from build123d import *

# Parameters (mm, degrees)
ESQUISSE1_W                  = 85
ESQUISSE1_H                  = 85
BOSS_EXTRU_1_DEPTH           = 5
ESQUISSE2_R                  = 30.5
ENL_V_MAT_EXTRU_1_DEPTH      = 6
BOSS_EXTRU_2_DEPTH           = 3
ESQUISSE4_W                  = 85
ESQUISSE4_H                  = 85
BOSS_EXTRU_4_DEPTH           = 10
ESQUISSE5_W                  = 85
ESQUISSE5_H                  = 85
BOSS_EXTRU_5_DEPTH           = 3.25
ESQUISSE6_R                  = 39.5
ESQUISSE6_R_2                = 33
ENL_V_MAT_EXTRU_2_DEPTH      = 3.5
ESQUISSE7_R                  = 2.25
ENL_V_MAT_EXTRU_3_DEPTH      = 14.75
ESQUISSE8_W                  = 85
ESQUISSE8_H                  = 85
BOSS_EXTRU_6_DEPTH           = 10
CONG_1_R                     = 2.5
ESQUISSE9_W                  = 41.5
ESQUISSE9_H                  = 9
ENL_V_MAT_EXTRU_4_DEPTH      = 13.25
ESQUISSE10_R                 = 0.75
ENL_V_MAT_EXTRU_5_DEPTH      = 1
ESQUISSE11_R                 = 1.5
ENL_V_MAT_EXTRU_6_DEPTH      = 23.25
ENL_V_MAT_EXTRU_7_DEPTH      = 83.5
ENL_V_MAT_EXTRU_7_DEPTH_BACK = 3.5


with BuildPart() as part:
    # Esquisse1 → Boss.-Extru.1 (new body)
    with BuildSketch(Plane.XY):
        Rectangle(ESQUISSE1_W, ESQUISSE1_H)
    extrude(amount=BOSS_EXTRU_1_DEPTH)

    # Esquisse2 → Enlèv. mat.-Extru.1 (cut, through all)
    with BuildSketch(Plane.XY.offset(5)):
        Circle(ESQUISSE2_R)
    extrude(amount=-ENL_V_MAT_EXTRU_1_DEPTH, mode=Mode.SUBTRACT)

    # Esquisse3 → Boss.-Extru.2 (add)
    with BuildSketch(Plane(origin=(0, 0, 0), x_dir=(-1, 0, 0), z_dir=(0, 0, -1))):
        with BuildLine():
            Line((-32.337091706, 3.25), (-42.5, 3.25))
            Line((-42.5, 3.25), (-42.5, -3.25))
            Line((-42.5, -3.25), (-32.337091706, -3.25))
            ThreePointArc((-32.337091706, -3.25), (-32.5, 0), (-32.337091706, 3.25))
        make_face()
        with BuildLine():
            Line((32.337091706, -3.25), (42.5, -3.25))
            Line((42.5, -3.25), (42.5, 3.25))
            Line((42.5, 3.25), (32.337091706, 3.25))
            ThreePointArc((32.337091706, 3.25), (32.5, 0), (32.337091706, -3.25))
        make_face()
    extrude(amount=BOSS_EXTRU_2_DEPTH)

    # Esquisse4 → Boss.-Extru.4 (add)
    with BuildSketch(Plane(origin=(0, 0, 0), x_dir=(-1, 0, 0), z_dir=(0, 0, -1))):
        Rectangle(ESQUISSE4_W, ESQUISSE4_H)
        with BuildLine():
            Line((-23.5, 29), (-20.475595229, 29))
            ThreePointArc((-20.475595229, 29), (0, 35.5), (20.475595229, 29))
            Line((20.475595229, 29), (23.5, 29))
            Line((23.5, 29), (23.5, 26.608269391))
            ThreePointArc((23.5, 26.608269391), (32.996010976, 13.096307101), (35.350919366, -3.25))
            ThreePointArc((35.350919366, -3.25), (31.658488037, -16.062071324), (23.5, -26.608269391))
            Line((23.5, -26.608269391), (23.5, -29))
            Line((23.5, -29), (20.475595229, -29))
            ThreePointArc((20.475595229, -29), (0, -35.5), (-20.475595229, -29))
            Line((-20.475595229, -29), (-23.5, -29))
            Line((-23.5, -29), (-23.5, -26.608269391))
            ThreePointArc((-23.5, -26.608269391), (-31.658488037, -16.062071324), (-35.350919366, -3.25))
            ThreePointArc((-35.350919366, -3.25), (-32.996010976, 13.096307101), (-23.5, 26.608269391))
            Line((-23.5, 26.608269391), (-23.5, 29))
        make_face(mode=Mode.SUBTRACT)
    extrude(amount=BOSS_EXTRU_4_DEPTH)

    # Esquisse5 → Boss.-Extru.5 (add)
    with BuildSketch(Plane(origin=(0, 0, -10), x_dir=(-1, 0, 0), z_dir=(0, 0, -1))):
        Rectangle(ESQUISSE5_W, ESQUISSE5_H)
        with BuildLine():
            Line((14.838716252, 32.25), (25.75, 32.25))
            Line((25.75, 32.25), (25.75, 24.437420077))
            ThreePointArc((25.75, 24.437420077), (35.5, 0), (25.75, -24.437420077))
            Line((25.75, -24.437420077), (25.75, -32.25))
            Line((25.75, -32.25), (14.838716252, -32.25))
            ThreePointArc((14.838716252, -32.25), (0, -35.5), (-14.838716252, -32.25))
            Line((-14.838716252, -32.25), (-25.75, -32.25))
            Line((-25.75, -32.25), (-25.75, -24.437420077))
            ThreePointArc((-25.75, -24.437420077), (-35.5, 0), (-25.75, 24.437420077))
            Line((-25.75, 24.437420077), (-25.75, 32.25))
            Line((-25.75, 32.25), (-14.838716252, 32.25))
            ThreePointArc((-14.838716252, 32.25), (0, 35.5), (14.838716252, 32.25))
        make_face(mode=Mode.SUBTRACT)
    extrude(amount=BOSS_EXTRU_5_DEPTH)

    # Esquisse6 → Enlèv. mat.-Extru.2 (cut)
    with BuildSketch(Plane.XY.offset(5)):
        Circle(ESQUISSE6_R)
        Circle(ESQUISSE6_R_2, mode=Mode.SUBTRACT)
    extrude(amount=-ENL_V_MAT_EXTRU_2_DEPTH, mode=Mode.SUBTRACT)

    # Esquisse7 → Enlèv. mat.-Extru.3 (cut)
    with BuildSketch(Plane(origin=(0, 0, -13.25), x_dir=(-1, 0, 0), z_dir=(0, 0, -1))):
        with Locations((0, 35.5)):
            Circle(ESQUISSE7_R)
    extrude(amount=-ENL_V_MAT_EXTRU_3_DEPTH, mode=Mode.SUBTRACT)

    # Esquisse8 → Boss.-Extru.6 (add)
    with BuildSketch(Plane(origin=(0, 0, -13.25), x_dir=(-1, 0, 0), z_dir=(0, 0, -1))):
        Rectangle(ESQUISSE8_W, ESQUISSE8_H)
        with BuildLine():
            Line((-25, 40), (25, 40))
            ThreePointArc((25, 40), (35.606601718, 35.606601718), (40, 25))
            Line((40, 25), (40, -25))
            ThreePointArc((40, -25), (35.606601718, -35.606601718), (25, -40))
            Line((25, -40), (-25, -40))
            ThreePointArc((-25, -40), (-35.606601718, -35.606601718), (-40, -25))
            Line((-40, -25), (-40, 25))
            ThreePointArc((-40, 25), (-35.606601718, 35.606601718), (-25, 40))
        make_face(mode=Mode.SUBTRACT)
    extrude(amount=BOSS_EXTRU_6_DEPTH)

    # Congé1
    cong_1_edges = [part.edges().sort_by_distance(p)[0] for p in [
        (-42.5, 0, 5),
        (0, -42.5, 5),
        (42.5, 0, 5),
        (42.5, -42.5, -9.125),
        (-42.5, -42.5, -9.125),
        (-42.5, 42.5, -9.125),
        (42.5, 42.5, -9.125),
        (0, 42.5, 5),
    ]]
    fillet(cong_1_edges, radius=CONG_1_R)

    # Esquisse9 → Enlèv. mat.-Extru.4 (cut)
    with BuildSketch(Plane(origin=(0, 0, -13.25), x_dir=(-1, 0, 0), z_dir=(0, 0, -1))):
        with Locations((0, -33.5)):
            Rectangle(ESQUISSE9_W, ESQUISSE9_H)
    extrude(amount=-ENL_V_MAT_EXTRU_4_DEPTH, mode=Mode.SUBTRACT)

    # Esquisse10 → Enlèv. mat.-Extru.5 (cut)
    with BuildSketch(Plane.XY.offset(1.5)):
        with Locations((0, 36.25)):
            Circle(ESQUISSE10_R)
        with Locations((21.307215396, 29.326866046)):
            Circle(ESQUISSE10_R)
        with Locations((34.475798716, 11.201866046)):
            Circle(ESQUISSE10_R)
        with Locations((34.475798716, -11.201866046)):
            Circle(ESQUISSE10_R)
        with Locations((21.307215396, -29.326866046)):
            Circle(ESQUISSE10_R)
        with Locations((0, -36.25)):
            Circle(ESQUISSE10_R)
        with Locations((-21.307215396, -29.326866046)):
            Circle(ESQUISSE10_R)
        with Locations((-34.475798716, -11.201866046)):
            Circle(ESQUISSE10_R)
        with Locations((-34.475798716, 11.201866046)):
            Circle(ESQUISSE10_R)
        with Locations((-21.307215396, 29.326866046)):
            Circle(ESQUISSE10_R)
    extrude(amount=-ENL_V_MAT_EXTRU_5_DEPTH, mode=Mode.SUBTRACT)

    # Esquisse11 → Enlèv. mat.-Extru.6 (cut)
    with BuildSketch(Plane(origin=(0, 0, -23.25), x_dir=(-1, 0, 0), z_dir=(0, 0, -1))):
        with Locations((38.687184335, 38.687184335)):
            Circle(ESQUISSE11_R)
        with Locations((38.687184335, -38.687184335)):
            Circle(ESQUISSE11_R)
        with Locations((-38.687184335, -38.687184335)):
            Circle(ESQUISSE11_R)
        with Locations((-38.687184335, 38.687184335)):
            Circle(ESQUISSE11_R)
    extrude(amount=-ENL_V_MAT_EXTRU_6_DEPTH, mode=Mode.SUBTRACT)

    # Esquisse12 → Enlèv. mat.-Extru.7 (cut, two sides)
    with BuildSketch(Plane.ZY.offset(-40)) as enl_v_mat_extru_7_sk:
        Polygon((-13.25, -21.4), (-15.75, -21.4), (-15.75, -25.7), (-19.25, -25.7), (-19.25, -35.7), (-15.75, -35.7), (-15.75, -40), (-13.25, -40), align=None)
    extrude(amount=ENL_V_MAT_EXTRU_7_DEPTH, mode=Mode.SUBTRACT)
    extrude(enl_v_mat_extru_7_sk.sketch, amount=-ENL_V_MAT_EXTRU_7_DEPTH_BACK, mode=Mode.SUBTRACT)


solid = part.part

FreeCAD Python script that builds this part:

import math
import FreeCAD as App
import Part
import Sketcher

V = App.Vector


def edges_at(feature, points):
    """Names of the edges that pass closest to the given points."""
    edges = feature.Shape.Edges
    near = lambda p: min(range(len(edges)), key=lambda i: edges[i].distToShape(Part.Vertex(*p))[0])
    return sorted({f"Edge{near(p) + 1}" for p in points})

doc = App.newDocument("Part")
body = doc.addObject("PartDesign::Body", "Body")

sketch1 = body.newObject("Sketcher::SketchObject", "Sketch")
sketch1.AttachmentSupport = (doc.getObject("XY_Plane"), [""])
sketch1.MapMode = "FlatFace"
sketch1.addGeometry(Part.LineSegment(V(-42, 42, 0), V(-42, -42, 0)), False)
sketch1.addGeometry(Part.LineSegment(V(-42, -42, 0), V(42, -42, 0)), False)
sketch1.addGeometry(Part.LineSegment(V(42, -42, 0), V(42, 42, 0)), False)
sketch1.addGeometry(Part.LineSegment(V(42, 42, 0), V(-42, 42, 0)), False)
sketch1.addConstraint(Sketcher.Constraint("Coincident", 0, 2, 1, 1))
sketch1.addConstraint(Sketcher.Constraint("Coincident", 1, 2, 2, 1))
sketch1.addConstraint(Sketcher.Constraint("Coincident", 2, 2, 3, 1))
sketch1.addConstraint(Sketcher.Constraint("Coincident", 3, 2, 0, 1))
sketch1.addConstraint(Sketcher.Constraint("Vertical", 0))
sketch1.addConstraint(Sketcher.Constraint("Horizontal", 1))
sketch1.addConstraint(Sketcher.Constraint("Vertical", 2))
sketch1.addConstraint(Sketcher.Constraint("Horizontal", 3))
sketch1.addConstraint(Sketcher.Constraint("Symmetric", 0, 2, 2, 2, -1, 1))
sketch1.addConstraint(Sketcher.Constraint("Equal", 3, 0))
sketch1.addConstraint(Sketcher.Constraint("DistanceX", 1, 1, 1, 2, 85.0))
pad1 = body.newObject("PartDesign::Pad", "Pad")
pad1.Profile = sketch1
pad1.Length = 5

sketch2 = body.newObject("Sketcher::SketchObject", "Sketch001")
sketch2.AttachmentSupport = (doc.getObject("XY_Plane"), [""])
sketch2.MapMode = "FlatFace"
sketch2.AttachmentOffset = App.Placement(V(0, 0, 5), App.Rotation())
sketch2.addGeometry(Part.Circle(V(0, 0, 0), V(0, 0, 1), 30), False)
sketch2.addConstraint(Sketcher.Constraint("Coincident", 0, 3, -1, 1))
sketch2.addConstraint(Sketcher.Constraint("Diameter", 0, 61.0))
pocket1 = body.newObject("PartDesign::Pocket", "Pocket")
pocket1.Profile = sketch2
pocket1.Type = "ThroughAll"

sketch3 = body.newObject("Sketcher::SketchObject", "Sketch002")
sketch3.AttachmentSupport = (doc.getObject("XY_Plane"), [""])
sketch3.MapMode = "FlatFace"
sketch3.addGeometry(Part.LineSegment(V(32, 3, 0), V(42, 3, 0)), False)
sketch3.addGeometry(Part.LineSegment(V(42, 3, 0), V(42, -3, 0)), False)
sketch3.addGeometry(Part.LineSegment(V(42, -3, 0), V(32, -3, 0)), False)
sketch3.addGeometry(Part.ArcOfCircle(Part.Circle(V(0, 0, 0), V(0, 0, 1), 33), math.radians(-5.74), math.radians(5.74)), False)
sketch3.addGeometry(Part.LineSegment(V(-32, -3, 0), V(-42, -3, 0)), False)
sketch3.addGeometry(Part.LineSegment(V(-42, -3, 0), V(-42, 3, 0)), False)
sketch3.addGeometry(Part.LineSegment(V(-42, 3, 0), V(-32, 3, 0)), False)
sketch3.addGeometry(Part.ArcOfCircle(Part.Circle(V(0, 0, 0), V(0, 0, 1), 33), math.radians(174.26), math.radians(185.74)), False)
sketch3.addConstraint(Sketcher.Constraint("Coincident", 0, 2, 1, 1))
sketch3.addConstraint(Sketcher.Constraint("Coincident", 1, 2, 2, 1))
sketch3.addConstraint(Sketcher.Constraint("Coincident", 2, 2, 3, 1))
sketch3.addConstraint(Sketcher.Constraint("Coincident", 3, 2, 0, 1))
sketch3.addConstraint(Sketcher.Constraint("Coincident", 4, 2, 5, 1))
sketch3.addConstraint(Sketcher.Constraint("Coincident", 5, 2, 6, 1))
sketch3.addConstraint(Sketcher.Constraint("Coincident", 6, 2, 7, 1))
sketch3.addConstraint(Sketcher.Constraint("Coincident", 7, 2, 4, 1))
sketch3.addConstraint(Sketcher.Constraint("Horizontal", 0))
sketch3.addConstraint(Sketcher.Constraint("Vertical", 1))
sketch3.addConstraint(Sketcher.Constraint("Horizontal", 2))
sketch3.addConstraint(Sketcher.Constraint("Horizontal", 4))
sketch3.addConstraint(Sketcher.Constraint("Vertical", 5))
sketch3.addConstraint(Sketcher.Constraint("Horizontal", 6))
sketch3.addConstraint(Sketcher.Constraint("Coincident", 3, 3, -1, 1))
sketch3.addConstraint(Sketcher.Constraint("Coincident", 7, 3, -1, 1))
sketch3.addConstraint(Sketcher.Constraint("Equal", 3, 7))
sketch3.addConstraint(Sketcher.Constraint("Symmetric", 0, 2, 4, 2, -1, 1))
sketch3.addConstraint(Sketcher.Constraint("Horizontal", 2, 2, 4, 2))
sketch3.addConstraint(Sketcher.Constraint("Horizontal", 3, 2, 5, 2))
sketch3.addConstraint(Sketcher.Constraint("Radius", 3, 32.5))
sketch3.addConstraint(Sketcher.Constraint("DistanceY", 1, 2, 1, 1, 6.5))
sketch3.addConstraint(Sketcher.Constraint("DistanceX", 4, 2, 1, 2, 85.0))
pad2 = body.newObject("PartDesign::Pad", "Pad001")
pad2.Profile = sketch3
pad2.Length = 3
pad2.Reversed = True

sketch4 = body.newObject("Sketcher::SketchObject", "Sketch003")
sketch4.AttachmentSupport = (doc.getObject("XY_Plane"), [""])
sketch4.MapMode = "FlatFace"
sketch4.addGeometry(Part.LineSegment(V(42.5, 42.5, 0), V(42.5, -42.5, 0)), False)
sketch4.addGeometry(Part.LineSegment(V(42.5, -42.5, 0), V(-42.5, -42.5, 0)), False)
sketch4.addGeometry(Part.LineSegment(V(-42.5, -42.5, 0), V(-42.5, 42.5, 0)), False)
sketch4.addGeometry(Part.LineSegment(V(-42.5, 42.5, 0), V(42.5, 42.5, 0)), False)
sketch4.addGeometry(Part.LineSegment(V(23.5, 26.6, 0), V(23.5, 29, 0)), False)
sketch4.addGeometry(Part.LineSegment(V(23.5, 29, 0), V(20.5, 29, 0)), False)
sketch4.addGeometry(Part.ArcOfCircle(Part.Circle(V(0, 0, 0), V(0, 0, 1), 35.5), math.radians(55), math.radians(125)), False)
sketch4.addGeometry(Part.LineSegment(V(-20.5, 29, 0), V(-23.5, 29, 0)), False)
sketch4.addGeometry(Part.LineSegment(V(-23.5, 29, 0), V(-23.5, 26.6, 0)), False)
sketch4.addGeometry(Part.ArcOfCircle(Part.Circle(V(0, 0, 0), V(0, 0, 1), 35.5), math.radians(131), math.radians(185)), False)
sketch4.addGeometry(Part.ArcOfCircle(Part.Circle(V(0, 0, 0), V(0, 0, 1), 35.5), math.radians(-175), math.radians(-131)), False)
sketch4.addGeometry(Part.LineSegment(V(-23.5, -26.6, 0), V(-23.5, -29, 0)), False)
sketch4.addGeometry(Part.LineSegment(V(-23.5, -29, 0), V(-20.5, -29, 0)), False)
sketch4.addGeometry(Part.ArcOfCircle(Part.Circle(V(0, 0, 0), V(0, 0, 1), 35.5), math.radians(-125), math.radians(-55)), False)
sketch4.addGeometry(Part.LineSegment(V(20.5, -29, 0), V(23.5, -29, 0)), False)
sketch4.addGeometry(Part.LineSegment(V(23.5, -29, 0), V(23.5, -26.6, 0)), False)
sketch4.addGeometry(Part.ArcOfCircle(Part.Circle(V(0, 0, 0), V(0, 0, 1), 35.5), math.radians(-49), math.radians(-5)), False)
sketch4.addGeometry(Part.ArcOfCircle(Part.Circle(V(0, 0, 0), V(0, 0, 1), 35.5), math.radians(-5), math.radians(49)), False)
sketch4.addConstraint(Sketcher.Constraint("Coincident", 0, 2, 1, 1))
sketch4.addConstraint(Sketcher.Constraint("Coincident", 1, 2, 2, 1))
sketch4.addConstraint(Sketcher.Constraint("Coincident", 2, 2, 3, 1))
sketch4.addConstraint(Sketcher.Constraint("Coincident", 3, 2, 0, 1))
sketch4.addConstraint(Sketcher.Constraint("Coincident", 4, 2, 5, 1))
sketch4.addConstraint(Sketcher.Constraint("Coincident", 5, 2, 6, 1))
sketch4.addConstraint(Sketcher.Constraint("Coincident", 6, 2, 7, 1))
sketch4.addConstraint(Sketcher.Constraint("Coincident", 7, 2, 8, 1))
sketch4.addConstraint(Sketcher.Constraint("Coincident", 8, 2, 9, 1))
sketch4.addConstraint(Sketcher.Constraint("Tangent", 9, 2, 10, 1))
sketch4.addConstraint(Sketcher.Constraint("Coincident", 10, 2, 11, 1))
sketch4.addConstraint(Sketcher.Constraint("Coincident", 11, 2, 12, 1))
sketch4.addConstraint(Sketcher.Constraint("Coincident", 12, 2, 13, 1))
sketch4.addConstraint(Sketcher.Constraint("Coincident", 13, 2, 14, 1))
sketch4.addConstraint(Sketcher.Constraint("Coincident", 14, 2, 15, 1))
sketch4.addConstraint(Sketcher.Constraint("Coincident", 15, 2, 16, 1))
sketch4.addConstraint(Sketcher.Constraint("Tangent", 16, 2, 17, 1))
sketch4.addConstraint(Sketcher.Constraint("Coincident", 17, 2, 4, 1))
sketch4.addConstraint(Sketcher.Constraint("Vertical", 0))
sketch4.addConstraint(Sketcher.Constraint("Horizontal", 1))
sketch4.addConstraint(Sketcher.Constraint("Vertical", 2))
sketch4.addConstraint(Sketcher.Constraint("Horizontal", 3))
sketch4.addConstraint(Sketcher.Constraint("Vertical", 4))
sketch4.addConstraint(Sketcher.Constraint("Horizontal", 5))
sketch4.addConstraint(Sketcher.Constraint("Horizontal", 7))
sketch4.addConstraint(Sketcher.Constraint("Vertical", 8))
sketch4.addConstraint(Sketcher.Constraint("Vertical", 11))
sketch4.addConstraint(Sketcher.Constraint("Horizontal", 12))
sketch4.addConstraint(Sketcher.Constraint("Horizontal", 14))
sketch4.addConstraint(Sketcher.Constraint("Vertical", 15))
sketch4.addConstraint(Sketcher.Constraint("Coincident", 6, 3, -1, 1))
sketch4.addConstraint(Sketcher.Constraint("Coincident", 9, 3, -1, 1))
sketch4.addConstraint(Sketcher.Constraint("Coincident", 13, 3, -1, 1))
sketch4.addConstraint(Sketcher.Constraint("Coincident", 16, 3, -1, 1))
sketch4.addConstraint(Sketcher.Constraint("Equal", 6, 9))
sketch4.addConstraint(Sketcher.Constraint("Equal", 9, 10))
sketch4.addConstraint(Sketcher.Constraint("Equal", 10, 13))
sketch4.addConstraint(Sketcher.Constraint("Equal", 13, 16))
sketch4.addConstraint(Sketcher.Constraint("Equal", 16, 17))
sketch4.addConstraint(Sketcher.Constraint("Symmetric", 0, 2, 2, 2, -1, 1))
sketch4.addConstraint(Sketcher.Constraint("Symmetric", 4, 2, 11, 2, -1, 1))
sketch4.addConstraint(Sketcher.Constraint("Symmetric", 7, 2, 14, 2, -1, 1))
sketch4.addConstraint(Sketcher.Constraint("Symmetric", 4, 2, 7, 2, -2))
sketch4.addConstraint(Sketcher.Constraint("Horizontal", 9, 2, 16, 2))
sketch4.addConstraint(Sketcher.Constraint("Equal", 3, 0))
sketch4.addConstraint(Sketcher.Constraint("Radius", 6, 35.5))
sketch4.addConstraint(Sketcher.Constraint("DistanceX", 1, 2, 1, 1, 85.0))
sketch4.addConstraint(Sketcher.Constraint("DistanceY", -1, 1, 4, 2, 29.0))
sketch4.addConstraint(Sketcher.Constraint("DistanceX", 4, 2, 3, 2, 19.0))
sketch4.addConstraint(Sketcher.Constraint("DistanceY", 9, 2, -1, 1, 3.25))
pad3 = body.newObject("PartDesign::Pad", "Pad002")
pad3.Profile = sketch4
pad3.Length = 10
pad3.Reversed = True

sketch5 = body.newObject("Sketcher::SketchObject", "Sketch004")
sketch5.AttachmentSupport = (doc.getObject("XY_Plane"), [""])
sketch5.MapMode = "FlatFace"
sketch5.AttachmentOffset = App.Placement(V(0, 0, -10), App.Rotation())
sketch5.addGeometry(Part.LineSegment(V(42, 42, 0), V(42, -42, 0)), False)
sketch5.addGeometry(Part.LineSegment(V(42, -42, 0), V(-42, -42, 0)), False)
sketch5.addGeometry(Part.LineSegment(V(-42, -42, 0), V(-42, 42, 0)), False)
sketch5.addGeometry(Part.LineSegment(V(-42, 42, 0), V(42, 42, 0)), False)
sketch5.addGeometry(Part.ArcOfCircle(Part.Circle(V(0, 0, 0), V(0, 0, 1), 36), math.radians(65), math.radians(115)), False)
sketch5.addGeometry(Part.LineSegment(V(-15, 32, 0), V(-26, 32, 0)), False)
sketch5.addGeometry(Part.LineSegment(V(-26, 32, 0), V(-26, 24, 0)), False)
sketch5.addGeometry(Part.ArcOfCircle(Part.Circle(V(0, 0, 0), V(0, 0, 1), 36), math.radians(136), math.radians(224)), False)
sketch5.addGeometry(Part.LineSegment(V(-26, -24, 0), V(-26, -32, 0)), False)
sketch5.addGeometry(Part.LineSegment(V(-26, -32, 0), V(-15, -32, 0)), False)
sketch5.addGeometry(Part.ArcOfCircle(Part.Circle(V(0, 0, 0), V(0, 0, 1), 36), math.radians(-115), math.radians(-65)), False)
sketch5.addGeometry(Part.LineSegment(V(15, -32, 0), V(26, -32, 0)), False)
sketch5.addGeometry(Part.LineSegment(V(26, -32, 0), V(26, -24, 0)), False)
sketch5.addGeometry(Part.ArcOfCircle(Part.Circle(V(0, 0, 0), V(0, 0, 1), 36), math.radians(-44), math.radians(44)), False)
sketch5.addGeometry(Part.LineSegment(V(26, 24, 0), V(26, 32, 0)), False)
sketch5.addGeometry(Part.LineSegment(V(26, 32, 0), V(15, 32, 0)), False)
sketch5.addConstraint(Sketcher.Constraint("Coincident", 0, 2, 1, 1))
sketch5.addConstraint(Sketcher.Constraint("Coincident", 1, 2, 2, 1))
sketch5.addConstraint(Sketcher.Constraint("Coincident", 2, 2, 3, 1))
sketch5.addConstraint(Sketcher.Constraint("Coincident", 3, 2, 0, 1))
sketch5.addConstraint(Sketcher.Constraint("Coincident", 4, 2, 5, 1))
sketch5.addConstraint(Sketcher.Constraint("Coincident", 5, 2, 6, 1))
sketch5.addConstraint(Sketcher.Constraint("Coincident", 6, 2, 7, 1))
sketch5.addConstraint(Sketcher.Constraint("Coincident", 7, 2, 8, 1))
sketch5.addConstraint(Sketcher.Constraint("Coincident", 8, 2, 9, 1))
sketch5.addConstraint(Sketcher.Constraint("Coincident", 9, 2, 10, 1))
sketch5.addConstraint(Sketcher.Constraint("Coincident", 10, 2, 11, 1))
sketch5.addConstraint(Sketcher.Constraint("Coincident", 11, 2, 12, 1))
sketch5.addConstraint(Sketcher.Constraint("Coincident", 12, 2, 13, 1))
sketch5.addConstraint(Sketcher.Constraint("Coincident", 13, 2, 14, 1))
sketch5.addConstraint(Sketcher.Constraint("Coincident", 14, 2, 15, 1))
sketch5.addConstraint(Sketcher.Constraint("Coincident", 15, 2, 4, 1))
sketch5.addConstraint(Sketcher.Constraint("Vertical", 0))
sketch5.addConstraint(Sketcher.Constraint("Horizontal", 1))
sketch5.addConstraint(Sketcher.Constraint("Vertical", 2))
sketch5.addConstraint(Sketcher.Constraint("Horizontal", 3))
sketch5.addConstraint(Sketcher.Constraint("Horizontal", 5))
sketch5.addConstraint(Sketcher.Constraint("Vertical", 6))
sketch5.addConstraint(Sketcher.Constraint("Vertical", 8))
sketch5.addConstraint(Sketcher.Constraint("Horizontal", 9))
sketch5.addConstraint(Sketcher.Constraint("Horizontal", 11))
sketch5.addConstraint(Sketcher.Constraint("Vertical", 12))
sketch5.addConstraint(Sketcher.Constraint("Vertical", 14))
sketch5.addConstraint(Sketcher.Constraint("Horizontal", 15))
sketch5.addConstraint(Sketcher.Constraint("Coincident", 4, 3, -1, 1))
sketch5.addConstraint(Sketcher.Constraint("Coincident", 7, 3, -1, 1))
sketch5.addConstraint(Sketcher.Constraint("Coincident", 10, 3, -1, 1))
sketch5.addConstraint(Sketcher.Constraint("Coincident", 13, 3, -1, 1))
sketch5.addConstraint(Sketcher.Constraint("Equal", 4, 7))
sketch5.addConstraint(Sketcher.Constraint("Equal", 7, 10))
sketch5.addConstraint(Sketcher.Constraint("Equal", 10, 13))
sketch5.addConstraint(Sketcher.Constraint("Symmetric", 0, 2, 2, 2, -1, 1))
sketch5.addConstraint(Sketcher.Constraint("Symmetric", 5, 2, 11, 2, -1, 1))
sketch5.addConstraint(Sketcher.Constraint("Symmetric", 8, 2, 14, 2, -1, 1))
sketch5.addConstraint(Sketcher.Constraint("Symmetric", 8, 2, 11, 2, -2))
sketch5.addConstraint(Sketcher.Constraint("Equal", 3, 0))
sketch5.addConstraint(Sketcher.Constraint("Radius", 4, 35.5))
sketch5.addConstraint(Sketcher.Constraint("DistanceX", 1, 2, 1, 1, 85.0))
sketch5.addConstraint(Sketcher.Constraint("DistanceY", -1, 1, 4, 2, 32.25))
sketch5.addConstraint(Sketcher.Constraint("DistanceX", 5, 2, -1, 1, 25.75))
pad4 = body.newObject("PartDesign::Pad", "Pad003")
pad4.Profile = sketch5
pad4.Length = 3.25
pad4.Reversed = True

sketch6 = body.newObject("Sketcher::SketchObject", "Sketch005")
sketch6.AttachmentSupport = (doc.getObject("XY_Plane"), [""])
sketch6.MapMode = "FlatFace"
sketch6.AttachmentOffset = App.Placement(V(0, 0, 5), App.Rotation())
sketch6.addGeometry(Part.Circle(V(0, 0, 0), V(0, 0, 1), 40), False)
sketch6.addGeometry(Part.Circle(V(0, 0, 0), V(0, 0, 1), 33), False)
sketch6.addConstraint(Sketcher.Constraint("Coincident", 0, 3, -1, 1))
sketch6.addConstraint(Sketcher.Constraint("Coincident", 1, 3, -1, 1))
sketch6.addConstraint(Sketcher.Constraint("Diameter", 0, 79.0))
sketch6.addConstraint(Sketcher.Constraint("Diameter", 1, 66.0))
pocket2 = body.newObject("PartDesign::Pocket", "Pocket001")
pocket2.Profile = sketch6
pocket2.Length = 3.5

sketch7 = body.newObject("Sketcher::SketchObject", "Sketch006")
sketch7.AttachmentSupport = (doc.getObject("XY_Plane"), [""])
sketch7.MapMode = "FlatFace"
sketch7.AttachmentOffset = App.Placement(V(0, 0, -13.25), App.Rotation())
sketch7.addGeometry(Part.Circle(V(0, 35.5, 0), V(0, 0, 1), 2.2), False)
sketch7.addConstraint(Sketcher.Constraint("PointOnObject", 0, 3, -2))
sketch7.addConstraint(Sketcher.Constraint("Diameter", 0, 4.5))
sketch7.addConstraint(Sketcher.Constraint("DistanceY", -1, 1, 0, 3, 35.5))
pocket3 = body.newObject("PartDesign::Pocket", "Pocket002")
pocket3.Profile = sketch7
pocket3.Length = 14.75
pocket3.Reversed = True

sketch8 = body.newObject("Sketcher::SketchObject", "Sketch007")
sketch8.AttachmentSupport = (doc.getObject("XY_Plane"), [""])
sketch8.MapMode = "FlatFace"
sketch8.AttachmentOffset = App.Placement(V(0, 0, -13.25), App.Rotation())
sketch8.addGeometry(Part.LineSegment(V(42, 42, 0), V(42, -42, 0)), False)
sketch8.addGeometry(Part.LineSegment(V(42, -42, 0), V(-42, -42, 0)), False)
sketch8.addGeometry(Part.LineSegment(V(-42, -42, 0), V(-42, 42, 0)), False)
sketch8.addGeometry(Part.LineSegment(V(-42, 42, 0), V(42, 42, 0)), False)
sketch8.addGeometry(Part.ArcOfCircle(Part.Circle(V(25, 25, 0), V(0, 0, 1), 15), math.radians(0), math.radians(90)), False)
sketch8.addGeometry(Part.LineSegment(V(25, 40, 0), V(-25, 40, 0)), False)
sketch8.addGeometry(Part.ArcOfCircle(Part.Circle(V(-25, 25, 0), V(0, 0, 1), 15), math.radians(90), math.radians(180)), False)
sketch8.addGeometry(Part.LineSegment(V(-40, 25, 0), V(-40, -25, 0)), False)
sketch8.addGeometry(Part.ArcOfCircle(Part.Circle(V(-25, -25, 0), V(0, 0, 1), 15), math.radians(180), math.radians(270)), False)
sketch8.addGeometry(Part.LineSegment(V(-25, -40, 0), V(25, -40, 0)), False)
sketch8.addGeometry(Part.ArcOfCircle(Part.Circle(V(25, -25, 0), V(0, 0, 1), 15), math.radians(-90), math.radians(0)), False)
sketch8.addGeometry(Part.LineSegment(V(40, -25, 0), V(40, 25, 0)), False)
sketch8.addConstraint(Sketcher.Constraint("Coincident", 0, 2, 1, 1))
sketch8.addConstraint(Sketcher.Constraint("Coincident", 1, 2, 2, 1))
sketch8.addConstraint(Sketcher.Constraint("Coincident", 2, 2, 3, 1))
sketch8.addConstraint(Sketcher.Constraint("Coincident", 3, 2, 0, 1))
sketch8.addConstraint(Sketcher.Constraint("Tangent", 4, 2, 5, 1))
sketch8.addConstraint(Sketcher.Constraint("Tangent", 5, 2, 6, 1))
sketch8.addConstraint(Sketcher.Constraint("Tangent", 6, 2, 7, 1))
sketch8.addConstraint(Sketcher.Constraint("Tangent", 7, 2, 8, 1))
sketch8.addConstraint(Sketcher.Constraint("Tangent", 8, 2, 9, 1))
sketch8.addConstraint(Sketcher.Constraint("Tangent", 9, 2, 10, 1))
sketch8.addConstraint(Sketcher.Constraint("Tangent", 10, 2, 11, 1))
sketch8.addConstraint(Sketcher.Constraint("Tangent", 11, 2, 4, 1))
sketch8.addConstraint(Sketcher.Constraint("Vertical", 0))
sketch8.addConstraint(Sketcher.Constraint("Horizontal", 1))
sketch8.addConstraint(Sketcher.Constraint("Vertical", 2))
sketch8.addConstraint(Sketcher.Constraint("Horizontal", 3))
sketch8.addConstraint(Sketcher.Constraint("Horizontal", 5))
sketch8.addConstraint(Sketcher.Constraint("Vertical", 7))
sketch8.addConstraint(Sketcher.Constraint("Horizontal", 9))
sketch8.addConstraint(Sketcher.Constraint("Vertical", 11))
sketch8.addConstraint(Sketcher.Constraint("Equal", 4, 6))
sketch8.addConstraint(Sketcher.Constraint("Equal", 6, 8))
sketch8.addConstraint(Sketcher.Constraint("Equal", 8, 10))
sketch8.addConstraint(Sketcher.Constraint("Symmetric", 4, 3, 8, 3, -1, 1))
sketch8.addConstraint(Sketcher.Constraint("Symmetric", 0, 2, 2, 2, -1, 1))
sketch8.addConstraint(Sketcher.Constraint("Equal", 3, 0))
sketch8.addConstraint(Sketcher.Constraint("Equal", 9, 7))
sketch8.addConstraint(Sketcher.Constraint("Radius", 4, 15.0))
sketch8.addConstraint(Sketcher.Constraint("DistanceX", 1, 2, 1, 1, 85.0))
sketch8.addConstraint(Sketcher.Constraint("DistanceX", 5, 2, 5, 1, 50.0))
pad5 = body.newObject("PartDesign::Pad", "Pad004")
pad5.Profile = sketch8
pad5.Length = 10
pad5.Reversed = True
doc.recompute()

fillet = body.newObject("PartDesign::Fillet", "Fillet")
fillet.Base = (pad5, edges_at(pad5, [
    (-42.5, 0, 5),
    (0, -42.5, 5),
    (42.5, 0, 5),
    (42.5, -42.5, -9.125),
    (-42.5, -42.5, -9.125),
    (-42.5, 42.5, -9.125),
    (42.5, 42.5, -9.125),
    (0, 42.5, 5),
]))
fillet.Radius = 2.5

sketch9 = body.newObject("Sketcher::SketchObject", "Sketch008")
sketch9.AttachmentSupport = (doc.getObject("XY_Plane"), [""])
sketch9.MapMode = "FlatFace"
sketch9.AttachmentOffset = App.Placement(V(0, 0, -13.25), App.Rotation())
sketch9.addGeometry(Part.LineSegment(V(21, -29, 0), V(21, -38, 0)), False)
sketch9.addGeometry(Part.LineSegment(V(21, -38, 0), V(-21, -38, 0)), False)
sketch9.addGeometry(Part.LineSegment(V(-21, -38, 0), V(-21, -29, 0)), False)
sketch9.addGeometry(Part.LineSegment(V(-21, -29, 0), V(21, -29, 0)), False)
sketch9.addConstraint(Sketcher.Constraint("Coincident", 0, 2, 1, 1))
sketch9.addConstraint(Sketcher.Constraint("Coincident", 1, 2, 2, 1))
sketch9.addConstraint(Sketcher.Constraint("Coincident", 2, 2, 3, 1))
sketch9.addConstraint(Sketcher.Constraint("Coincident", 3, 2, 0, 1))
sketch9.addConstraint(Sketcher.Constraint("Vertical", 0))
sketch9.addConstraint(Sketcher.Constraint("Horizontal", 1))
sketch9.addConstraint(Sketcher.Constraint("Vertical", 2))
sketch9.addConstraint(Sketcher.Constraint("Horizontal", 3))
sketch9.addConstraint(Sketcher.Constraint("DistanceY", 0, 2, 0, 1, 9.0))
sketch9.addConstraint(Sketcher.Constraint("DistanceX", 1, 2, 1, 1, 41.5))
sketch9.addConstraint(Sketcher.Constraint("DistanceY", 0, 2, -1, 1, 38.0))
sketch9.addConstraint(Sketcher.Constraint("DistanceX", -1, 1, 0, 2, 20.75))
pocket4 = body.newObject("PartDesign::Pocket", "Pocket003")
pocket4.Profile = sketch9
pocket4.Length = 13.25
pocket4.Reversed = True

sketch10 = body.newObject("Sketcher::SketchObject", "Sketch009")
sketch10.AttachmentSupport = (doc.getObject("XY_Plane"), [""])
sketch10.MapMode = "FlatFace"
sketch10.AttachmentOffset = App.Placement(V(0, 0, 1.5), App.Rotation())
sketch10.addGeometry(Part.Circle(V(0, 36.2, 0), V(0, 0, 1), 0.8), False)
sketch10.addGeometry(Part.Circle(V(21.3, 29.3, 0), V(0, 0, 1), 0.8), False)
sketch10.addGeometry(Part.Circle(V(34.5, 11.2, 0), V(0, 0, 1), 0.8), False)
sketch10.addGeometry(Part.Circle(V(34.5, -11.2, 0), V(0, 0, 1), 0.8), False)
sketch10.addGeometry(Part.Circle(V(21.3, -29.3, 0), V(0, 0, 1), 0.8), False)
sketch10.addGeometry(Part.Circle(V(0, -36.2, 0), V(0, 0, 1), 0.8), False)
sketch10.addGeometry(Part.Circle(V(-21.3, -29.3, 0), V(0, 0, 1), 0.8), False)
sketch10.addGeometry(Part.Circle(V(-34.5, -11.2, 0), V(0, 0, 1), 0.8), False)
sketch10.addGeometry(Part.Circle(V(-34.5, 11.2, 0), V(0, 0, 1), 0.8), False)
sketch10.addGeometry(Part.Circle(V(-21.3, 29.3, 0), V(0, 0, 1), 0.8), False)
sketch10.addConstraint(Sketcher.Constraint("Equal", 0, 1))
sketch10.addConstraint(Sketcher.Constraint("Equal", 1, 2))
sketch10.addConstraint(Sketcher.Constraint("Equal", 2, 3))
sketch10.addConstraint(Sketcher.Constraint("Equal", 3, 4))
sketch10.addConstraint(Sketcher.Constraint("Equal", 4, 5))
sketch10.addConstraint(Sketcher.Constraint("Equal", 5, 6))
sketch10.addConstraint(Sketcher.Constraint("Equal", 6, 7))
sketch10.addConstraint(Sketcher.Constraint("Equal", 7, 8))
sketch10.addConstraint(Sketcher.Constraint("Equal", 8, 9))
sketch10.addConstraint(Sketcher.Constraint("Symmetric", 0, 3, 5, 3, -1, 1))
sketch10.addConstraint(Sketcher.Constraint("Symmetric", 1, 3, 6, 3, -1, 1))
sketch10.addConstraint(Sketcher.Constraint("Symmetric", 2, 3, 7, 3, -1, 1))
sketch10.addConstraint(Sketcher.Constraint("Symmetric", 3, 3, 8, 3, -1, 1))
sketch10.addConstraint(Sketcher.Constraint("Symmetric", 4, 3, 9, 3, -1, 1))
sketch10.addConstraint(Sketcher.Constraint("Symmetric", 4, 3, 6, 3, -2))
sketch10.addConstraint(Sketcher.Constraint("Symmetric", 3, 3, 7, 3, -2))
sketch10.addConstraint(Sketcher.Constraint("PointOnObject", 0, 3, -2))
sketch10.addConstraint(Sketcher.Constraint("Diameter", 0, 1.5))
sketch10.addConstraint(Sketcher.Constraint("DistanceY", 5, 3, 0, 3, 72.5))
sketch10.addConstraint(Sketcher.Constraint("DistanceY", 2, 3, 1, 3, 18.125))
sketch10.addConstraint(Sketcher.Constraint("DistanceX", -1, 1, 2, 3, 34.475799))
sketch10.addConstraint(Sketcher.Constraint("DistanceX", 6, 3, 4, 3, 42.614431))
sketch10.addConstraint(Sketcher.Constraint("DistanceY", -1, 1, 1, 3, 29.326866))
pocket5 = body.newObject("PartDesign::Pocket", "Pocket004")
pocket5.Profile = sketch10
pocket5.Length = 1

sketch11 = body.newObject("Sketcher::SketchObject", "Sketch010")
sketch11.AttachmentSupport = (doc.getObject("XY_Plane"), [""])
sketch11.MapMode = "FlatFace"
sketch11.AttachmentOffset = App.Placement(V(0, 0, -23.25), App.Rotation())
sketch11.addGeometry(Part.Circle(V(-38.7, 38.7, 0), V(0, 0, 1), 1.5), False)
sketch11.addGeometry(Part.Circle(V(-38.7, -38.7, 0), V(0, 0, 1), 1.5), False)
sketch11.addGeometry(Part.Circle(V(38.7, -38.7, 0), V(0, 0, 1), 1.5), False)
sketch11.addGeometry(Part.Circle(V(38.7, 38.7, 0), V(0, 0, 1), 1.5), False)
sketch11.addConstraint(Sketcher.Constraint("Equal", 0, 1))
sketch11.addConstraint(Sketcher.Constraint("Equal", 1, 2))
sketch11.addConstraint(Sketcher.Constraint("Equal", 2, 3))
sketch11.addConstraint(Sketcher.Constraint("Symmetric", 0, 3, 2, 3, -1, 1))
sketch11.addConstraint(Sketcher.Constraint("Symmetric", 1, 3, 3, 3, -1, 1))
sketch11.addConstraint(Sketcher.Constraint("Symmetric", 1, 3, 2, 3, -2))
sketch11.addConstraint(Sketcher.Constraint("Diameter", 0, 3.0))
sketch11.addConstraint(Sketcher.Constraint("DistanceY", 1, 3, 0, 3, 77.374369))
sketch11.addConstraint(Sketcher.Constraint("DistanceX", 1, 3, 2, 3, 77.374369))
pocket6 = body.newObject("PartDesign::Pocket", "Pocket005")
pocket6.Profile = sketch11
pocket6.Length = 23.25
pocket6.Reversed = True

sketch12 = body.newObject("Sketcher::SketchObject", "Sketch011")
sketch12.AttachmentSupport = (doc.getObject("YZ_Plane"), [""])
sketch12.MapMode = "FlatFace"
sketch12.AttachmentOffset = App.Placement(V(0, 0, 40), App.Rotation())
sketch12.addGeometry(Part.LineSegment(V(-21.4, -13.2, 0), V(-21.4, -15.8, 0)), False)
sketch12.addGeometry(Part.LineSegment(V(-21.4, -15.8, 0), V(-25.7, -15.8, 0)), False)
sketch12.addGeometry(Part.LineSegment(V(-25.7, -15.8, 0), V(-25.7, -19.2, 0)), False)
sketch12.addGeometry(Part.LineSegment(V(-25.7, -19.2, 0), V(-35.7, -19.2, 0)), False)
sketch12.addGeometry(Part.LineSegment(V(-35.7, -19.2, 0), V(-35.7, -15.8, 0)), False)
sketch12.addGeometry(Part.LineSegment(V(-35.7, -15.8, 0), V(-40, -15.8, 0)), False)
sketch12.addGeometry(Part.LineSegment(V(-40, -15.8, 0), V(-40, -13.2, 0)), False)
sketch12.addGeometry(Part.LineSegment(V(-40, -13.2, 0), V(-21.4, -13.2, 0)), False)
sketch12.addConstraint(Sketcher.Constraint("Coincident", 0, 2, 1, 1))
sketch12.addConstraint(Sketcher.Constraint("Coincident", 1, 2, 2, 1))
sketch12.addConstraint(Sketcher.Constraint("Coincident", 2, 2, 3, 1))
sketch12.addConstraint(Sketcher.Constraint("Coincident", 3, 2, 4, 1))
sketch12.addConstraint(Sketcher.Constraint("Coincident", 4, 2, 5, 1))
sketch12.addConstraint(Sketcher.Constraint("Coincident", 5, 2, 6, 1))
sketch12.addConstraint(Sketcher.Constraint("Coincident", 6, 2, 7, 1))
sketch12.addConstraint(Sketcher.Constraint("Coincident", 7, 2, 0, 1))
sketch12.addConstraint(Sketcher.Constraint("Vertical", 0))
sketch12.addConstraint(Sketcher.Constraint("Horizontal", 1))
sketch12.addConstraint(Sketcher.Constraint("Vertical", 2))
sketch12.addConstraint(Sketcher.Constraint("Horizontal", 3))
sketch12.addConstraint(Sketcher.Constraint("Vertical", 4))
sketch12.addConstraint(Sketcher.Constraint("Horizontal", 5))
sketch12.addConstraint(Sketcher.Constraint("Vertical", 6))
sketch12.addConstraint(Sketcher.Constraint("Horizontal", 7))
sketch12.addConstraint(Sketcher.Constraint("Horizontal", 1, 2, 4, 2))
sketch12.addConstraint(Sketcher.Constraint("Equal", 1, 5))
sketch12.addConstraint(Sketcher.Constraint("DistanceX", 3, 2, 3, 1, 10.0))
sketch12.addConstraint(Sketcher.Constraint("DistanceX", 1, 2, 1, 1, 4.3))
sketch12.addConstraint(Sketcher.Constraint("DistanceY", 0, 2, 0, 1, 2.5))
sketch12.addConstraint(Sketcher.Constraint("DistanceY", 2, 2, 2, 1, 3.5))
sketch12.addConstraint(Sketcher.Constraint("DistanceX", 5, 2, -1, 1, 40.0))
sketch12.addConstraint(Sketcher.Constraint("DistanceY", 0, 2, -1, 1, 15.75))
pocket7 = body.newObject("PartDesign::Pocket", "Pocket006")
pocket7.Profile = sketch12
pocket7.Type = "ThroughAll"
pocket7.Midplane = True

doc.recompute()
